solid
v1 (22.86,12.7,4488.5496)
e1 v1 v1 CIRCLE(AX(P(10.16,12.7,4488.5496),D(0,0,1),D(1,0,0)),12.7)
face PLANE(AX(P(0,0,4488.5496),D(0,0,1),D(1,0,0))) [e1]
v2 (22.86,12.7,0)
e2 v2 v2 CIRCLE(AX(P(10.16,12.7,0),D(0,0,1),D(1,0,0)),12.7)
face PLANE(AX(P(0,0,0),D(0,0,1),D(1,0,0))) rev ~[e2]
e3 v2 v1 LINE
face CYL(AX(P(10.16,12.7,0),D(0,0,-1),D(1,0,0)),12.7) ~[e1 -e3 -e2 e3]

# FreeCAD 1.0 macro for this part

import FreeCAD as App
import Part
import Sketcher

V = App.Vector
Q = App.Units.Quantity

doc = App.newDocument("Part")
body = doc.addObject("PartDesign::Body", "Body")

# Sketch on XY plane
sketch1 = body.newObject("Sketcher::SketchObject", "Sketch")
sketch1.AttachmentSupport = (doc.getObject("XY_Plane"), [""])
sketch1.MapMode = "FlatFace"
sketch1.addGeometry(Part.Circle(V(10, 13, 0), V(0, 0, 1), 13), False)
sketch1.addConstraint(Sketcher.Constraint("Diameter", 0, Q("1 in")))
sketch1.addConstraint(Sketcher.Constraint("DistanceX", -1, 1, 0, 3, Q("0.4 in")))
sketch1.addConstraint(Sketcher.Constraint("DistanceY", -1, 1, 0, 3, Q("0.5 in")))
pad1 = body.newObject("PartDesign::Pad", "Pad")
pad1.Profile = sketch1
pad1.Length = 4488.5496

doc.recompute()
